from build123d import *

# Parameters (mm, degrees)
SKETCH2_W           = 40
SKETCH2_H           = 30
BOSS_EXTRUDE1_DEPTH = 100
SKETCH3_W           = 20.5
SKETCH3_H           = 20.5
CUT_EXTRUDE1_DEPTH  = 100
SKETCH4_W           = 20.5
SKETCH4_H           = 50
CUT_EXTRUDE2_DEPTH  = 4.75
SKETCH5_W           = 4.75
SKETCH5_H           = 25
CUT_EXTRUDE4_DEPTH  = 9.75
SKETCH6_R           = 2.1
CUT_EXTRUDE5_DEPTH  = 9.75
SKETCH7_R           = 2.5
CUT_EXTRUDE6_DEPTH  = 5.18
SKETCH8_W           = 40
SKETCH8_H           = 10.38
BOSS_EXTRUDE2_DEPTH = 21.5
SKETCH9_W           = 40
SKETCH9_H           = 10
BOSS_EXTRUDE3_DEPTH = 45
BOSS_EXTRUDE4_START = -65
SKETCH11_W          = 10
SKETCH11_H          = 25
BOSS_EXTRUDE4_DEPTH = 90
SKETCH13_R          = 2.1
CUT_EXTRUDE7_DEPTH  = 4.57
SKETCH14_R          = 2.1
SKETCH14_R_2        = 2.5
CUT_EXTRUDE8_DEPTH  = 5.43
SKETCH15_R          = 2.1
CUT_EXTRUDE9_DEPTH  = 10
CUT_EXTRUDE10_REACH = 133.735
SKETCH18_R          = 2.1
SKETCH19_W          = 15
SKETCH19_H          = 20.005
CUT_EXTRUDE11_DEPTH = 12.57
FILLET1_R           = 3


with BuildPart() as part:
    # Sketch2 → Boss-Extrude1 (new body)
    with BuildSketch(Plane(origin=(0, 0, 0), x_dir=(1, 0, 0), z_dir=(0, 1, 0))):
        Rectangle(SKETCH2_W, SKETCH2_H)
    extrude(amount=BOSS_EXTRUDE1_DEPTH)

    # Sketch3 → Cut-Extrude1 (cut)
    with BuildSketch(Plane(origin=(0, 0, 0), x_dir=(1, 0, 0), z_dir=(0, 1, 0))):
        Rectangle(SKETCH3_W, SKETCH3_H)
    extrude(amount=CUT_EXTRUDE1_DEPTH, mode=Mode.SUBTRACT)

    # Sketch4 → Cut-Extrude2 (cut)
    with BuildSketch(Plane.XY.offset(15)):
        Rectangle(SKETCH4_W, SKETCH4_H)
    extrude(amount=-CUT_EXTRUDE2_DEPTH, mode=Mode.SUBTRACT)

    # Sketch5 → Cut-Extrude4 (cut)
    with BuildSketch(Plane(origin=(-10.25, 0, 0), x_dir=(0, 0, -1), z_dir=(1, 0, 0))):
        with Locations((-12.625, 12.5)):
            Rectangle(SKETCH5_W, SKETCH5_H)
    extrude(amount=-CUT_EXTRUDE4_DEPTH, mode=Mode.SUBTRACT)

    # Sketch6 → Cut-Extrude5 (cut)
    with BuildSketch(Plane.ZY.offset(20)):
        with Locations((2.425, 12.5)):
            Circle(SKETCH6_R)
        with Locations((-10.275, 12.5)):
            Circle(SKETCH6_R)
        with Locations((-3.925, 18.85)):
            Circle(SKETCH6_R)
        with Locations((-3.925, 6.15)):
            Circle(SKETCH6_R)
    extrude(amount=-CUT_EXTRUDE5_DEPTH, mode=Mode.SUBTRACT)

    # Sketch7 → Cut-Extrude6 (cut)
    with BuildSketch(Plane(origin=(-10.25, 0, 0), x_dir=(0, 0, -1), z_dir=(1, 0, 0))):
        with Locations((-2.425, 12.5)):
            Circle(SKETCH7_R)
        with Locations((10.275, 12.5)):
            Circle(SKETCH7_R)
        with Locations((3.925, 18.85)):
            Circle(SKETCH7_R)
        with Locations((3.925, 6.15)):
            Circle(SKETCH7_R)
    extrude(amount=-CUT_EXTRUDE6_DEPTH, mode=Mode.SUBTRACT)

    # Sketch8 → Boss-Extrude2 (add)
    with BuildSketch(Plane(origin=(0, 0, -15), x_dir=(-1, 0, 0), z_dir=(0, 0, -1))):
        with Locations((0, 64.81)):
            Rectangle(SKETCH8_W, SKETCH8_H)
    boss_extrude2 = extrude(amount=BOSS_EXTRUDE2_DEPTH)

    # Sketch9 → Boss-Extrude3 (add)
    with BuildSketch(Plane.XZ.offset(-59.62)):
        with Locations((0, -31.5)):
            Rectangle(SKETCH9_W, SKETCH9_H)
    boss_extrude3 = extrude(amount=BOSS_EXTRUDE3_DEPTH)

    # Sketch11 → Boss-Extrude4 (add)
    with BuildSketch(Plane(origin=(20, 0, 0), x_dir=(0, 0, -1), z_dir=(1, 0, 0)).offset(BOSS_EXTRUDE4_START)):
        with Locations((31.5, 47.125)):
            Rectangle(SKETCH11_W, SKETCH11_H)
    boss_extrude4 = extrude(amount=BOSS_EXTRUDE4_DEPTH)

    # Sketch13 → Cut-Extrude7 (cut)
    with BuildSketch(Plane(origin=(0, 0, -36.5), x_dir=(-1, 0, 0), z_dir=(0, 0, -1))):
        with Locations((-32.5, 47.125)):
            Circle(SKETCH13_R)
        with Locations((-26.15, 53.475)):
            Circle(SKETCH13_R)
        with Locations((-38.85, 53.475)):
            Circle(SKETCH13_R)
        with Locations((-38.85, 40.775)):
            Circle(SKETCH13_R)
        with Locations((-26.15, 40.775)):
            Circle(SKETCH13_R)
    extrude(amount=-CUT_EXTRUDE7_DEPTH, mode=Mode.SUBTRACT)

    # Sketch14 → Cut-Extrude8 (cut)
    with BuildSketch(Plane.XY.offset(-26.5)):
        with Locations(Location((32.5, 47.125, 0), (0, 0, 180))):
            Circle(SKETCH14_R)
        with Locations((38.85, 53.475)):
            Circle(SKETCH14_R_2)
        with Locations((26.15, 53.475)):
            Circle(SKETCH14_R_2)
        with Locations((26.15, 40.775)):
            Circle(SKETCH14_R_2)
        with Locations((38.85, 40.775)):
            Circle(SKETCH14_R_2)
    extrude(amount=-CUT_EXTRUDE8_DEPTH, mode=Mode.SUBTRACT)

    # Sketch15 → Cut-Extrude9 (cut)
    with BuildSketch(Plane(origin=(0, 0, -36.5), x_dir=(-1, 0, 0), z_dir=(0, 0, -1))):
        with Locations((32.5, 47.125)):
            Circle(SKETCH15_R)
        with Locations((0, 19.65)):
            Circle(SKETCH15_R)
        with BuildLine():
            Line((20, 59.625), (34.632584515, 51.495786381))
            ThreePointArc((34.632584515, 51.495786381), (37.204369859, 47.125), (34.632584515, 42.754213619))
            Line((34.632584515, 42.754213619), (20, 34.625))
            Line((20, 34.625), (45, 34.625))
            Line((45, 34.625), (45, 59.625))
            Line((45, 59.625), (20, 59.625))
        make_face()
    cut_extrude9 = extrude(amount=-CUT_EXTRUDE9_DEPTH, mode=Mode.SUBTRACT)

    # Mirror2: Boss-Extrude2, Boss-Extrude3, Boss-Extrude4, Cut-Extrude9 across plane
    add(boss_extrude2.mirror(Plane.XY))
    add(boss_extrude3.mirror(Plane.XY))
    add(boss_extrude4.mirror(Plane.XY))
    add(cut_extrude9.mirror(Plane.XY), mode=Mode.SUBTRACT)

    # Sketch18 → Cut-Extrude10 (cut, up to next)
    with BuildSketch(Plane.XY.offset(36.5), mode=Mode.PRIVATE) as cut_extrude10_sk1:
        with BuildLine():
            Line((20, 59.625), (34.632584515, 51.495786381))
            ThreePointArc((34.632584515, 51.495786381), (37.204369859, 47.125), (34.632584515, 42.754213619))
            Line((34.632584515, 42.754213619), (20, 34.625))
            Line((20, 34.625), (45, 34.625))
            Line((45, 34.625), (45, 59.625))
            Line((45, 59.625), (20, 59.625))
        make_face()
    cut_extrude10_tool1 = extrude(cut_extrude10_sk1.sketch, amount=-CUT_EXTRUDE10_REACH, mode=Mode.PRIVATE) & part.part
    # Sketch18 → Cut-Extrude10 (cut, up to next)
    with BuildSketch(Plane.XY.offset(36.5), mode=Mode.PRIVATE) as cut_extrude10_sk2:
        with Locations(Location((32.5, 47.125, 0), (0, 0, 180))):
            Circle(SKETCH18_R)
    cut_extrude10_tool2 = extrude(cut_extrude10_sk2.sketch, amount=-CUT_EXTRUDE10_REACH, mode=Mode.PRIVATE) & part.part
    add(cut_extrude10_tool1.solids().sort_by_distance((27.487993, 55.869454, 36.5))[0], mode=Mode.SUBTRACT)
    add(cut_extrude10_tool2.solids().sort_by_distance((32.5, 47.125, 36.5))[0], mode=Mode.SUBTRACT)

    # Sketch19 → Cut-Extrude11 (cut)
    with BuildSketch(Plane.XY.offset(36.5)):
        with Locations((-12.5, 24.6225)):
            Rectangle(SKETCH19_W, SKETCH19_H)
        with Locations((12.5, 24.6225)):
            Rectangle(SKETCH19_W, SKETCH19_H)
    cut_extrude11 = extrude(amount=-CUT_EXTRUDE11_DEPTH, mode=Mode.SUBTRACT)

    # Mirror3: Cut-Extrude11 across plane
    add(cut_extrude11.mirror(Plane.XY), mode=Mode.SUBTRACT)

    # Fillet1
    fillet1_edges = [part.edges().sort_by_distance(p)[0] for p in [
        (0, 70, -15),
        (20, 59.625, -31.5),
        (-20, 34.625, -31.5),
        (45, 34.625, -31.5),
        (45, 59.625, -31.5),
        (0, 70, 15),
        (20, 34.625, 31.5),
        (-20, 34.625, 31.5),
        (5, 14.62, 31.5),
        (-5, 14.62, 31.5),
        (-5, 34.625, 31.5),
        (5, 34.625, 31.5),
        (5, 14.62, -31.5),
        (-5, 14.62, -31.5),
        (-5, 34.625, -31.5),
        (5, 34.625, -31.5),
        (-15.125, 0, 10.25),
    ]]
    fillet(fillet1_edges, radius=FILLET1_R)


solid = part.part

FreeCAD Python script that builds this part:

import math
import FreeCAD as App
import Part
import Sketcher
from FreeCAD import Vector
Q = App.Units.Quantity


def edges_at(feature, points):
    """Names of the edges that pass closest to the given points."""
    edges = feature.Shape.Edges
    near = lambda p: min(range(len(edges)), key=lambda i: edges[i].distToShape(Part.Vertex(*p))[0])
    return sorted({f"Edge{near(p) + 1}" for p in points})


def add_polygon(sketch, points):
    """Adds a closed chain of lines whose ends are joined by coincident constraints."""
    first, n = sketch.GeometryCount, len(points)
    for a, b in zip(points, points[1:] + points[:1]):
        sketch.addGeometry(Part.LineSegment(App.Vector(*a, 0), App.Vector(*b, 0)), False)
    for i in range(n):
        sketch.addConstraint(Sketcher.Constraint("Coincident", first + i, 2, first + (i + 1) % n, 1))

doc = App.newDocument("Part")
params = doc.addObject("Spreadsheet::Sheet", "Params")
for row, (alias, value) in enumerate([
    ("sketch1_width", "40 mm"),
    ("sketch1_height", "30 mm"),
    ("pad1_length", "100 mm"),
    ("sketch2_width", "20.5 mm"),
    ("pocket1_length", "100 mm"),
    ("sketch3_height", "50 mm"),
    ("sketch3_width", "20.5 mm"),
    ("pocket2_length", "4.75 mm"),
    ("sketch4_width", "25 mm"),
    ("sketch4_height", "4.75 mm"),
    ("pocket3_length", "9.75 mm"),
    ("sketch5_diameter", "4.2 mm"),
    ("pocket4_length", "9.75 mm"),
    ("sketch6_diameter", "5 mm"),
    ("pocket5_length", "5.18 mm"),
    ("sketch7_width", "40 mm"),
    ("sketch7_height", "10.38 mm"),
    ("pad2_length", "21.5 mm"),
    ("sketch8_width", "40 mm"),
    ("sketch8_height", "10 mm"),
    ("pad3_length", "45 mm"),
    ("sketch9_width", "25 mm"),
    ("sketch9_height", "10 mm"),
    ("pad4_length", "90 mm"),
    ("sketch10_diameter", "4.2 mm"),
    ("pocket6_length", "4.57 mm"),
    ("sketch11_diameter", "5 mm"),
    ("sketch11_diameter2", "4.2 mm"),
    ("pocket7_length", "5.43 mm"),
    ("sketch12_radius", "5 mm"),
    ("sketch12_diameter", "4.2 mm"),
    ("sketch12_width", "25 mm"),
    ("pocket8_length", "10 mm"),
    ("sketch13_radius", "5 mm"),
    ("sketch13_width", "25 mm"),
    ("sketch14_diameter", "4.2 mm"),
    ("sketch15_width", "15 mm"),
    ("pocket11_length", "12.57 mm"),
    ("fillet_radius", "3 mm"),
], start=1):
    params.set(f"A{row}", alias)
    params.set(f"B{row}", "=" + value)
    params.setAlias(f"B{row}", alias)

body = doc.addObject("PartDesign::Body", "Body")

sketch1 = doc.addObject("Sketcher::SketchObject", "Sketch")
body.addObject(sketch1)
sketch1.AttachmentSupport = (doc.XZ_Plane, [""])
sketch1.MapMode = "FlatFace"
add_polygon(sketch1, [(-20, -15), (-20, 15), (20, 15), (20, -15)])
sketch1.addConstraint([
    Sketcher.Constraint("Vertical", 0),
    Sketcher.Constraint("Horizontal", 1),
    Sketcher.Constraint("Vertical", 2),
    Sketcher.Constraint("Horizontal", 3),
    Sketcher.Constraint("Symmetric", 0, 2, 2, 2, -1, 1),
    Sketcher.Constraint("DistanceX", 1, 1, 1, 2, Q("40 mm")),
    Sketcher.Constraint("DistanceY", 0, 1, 0, 2, Q("30 mm")),
])
sketch1.setExpression("Constraints[9]", "Params.sketch1_width")
sketch1.setExpression("Constraints[10]", "Params.sketch1_height")
pad1 = doc.addObject("PartDesign::Pad", "Pad")
body.addObject(pad1)
pad1.Profile = sketch1
pad1.setExpression("Length", "Params.pad1_length")
pad1.Reversed = True

sketch2 = doc.addObject("Sketcher::SketchObject", "Sketch001")
body.addObject(sketch2)
sketch2.AttachmentSupport = (doc.XZ_Plane, [""])
sketch2.MapMode = "FlatFace"
add_polygon(sketch2, [(-10, -10), (-10, 10), (10, 10), (10, -10)])
sketch2.addConstraint([
    Sketcher.Constraint("Vertical", 0),
    Sketcher.Constraint("Horizontal", 1),
    Sketcher.Constraint("Vertical", 2),
    Sketcher.Constraint("Horizontal", 3),
    Sketcher.Constraint("Symmetric", 0, 2, 2, 2, -1, 1),
    Sketcher.Constraint("Equal", 3, 0),
    Sketcher.Constraint("DistanceX", 1, 1, 1, 2, Q("20.5 mm")),
])
sketch2.setExpression("Constraints[10]", "Params.sketch2_width")
pocket1 = doc.addObject("PartDesign::Pocket", "Pocket")
body.addObject(pocket1)
pocket1.Profile = sketch2
pocket1.setExpression("Length", "Params.pocket1_length")

sketch3 = doc.addObject("Sketcher::SketchObject", "Sketch002")
body.addObject(sketch3)
sketch3.AttachmentSupport = (doc.XY_Plane, [""])
sketch3.MapMode = "FlatFace"
sketch3.AttachmentOffset = App.Placement(Vector(0, 0, 15), App.Rotation())
add_polygon(sketch3, [(-10, 25), (-10, -25), (10, -25), (10, 25)])
sketch3.addConstraint([
    Sketcher.Constraint("Vertical", 0),
    Sketcher.Constraint("Horizontal", 1),
    Sketcher.Constraint("Vertical", 2),
    Sketcher.Constraint("Horizontal", 3),
    Sketcher.Constraint("Symmetric", 0, 2, 2, 2, -1, 1),
    Sketcher.Constraint("DistanceY", 0, 2, 0, 1, Q("50 mm")),
    Sketcher.Constraint("DistanceX", 1, 1, 1, 2, Q("20.5 mm")),
])
sketch3.setExpression("Constraints[9]", "Params.sketch3_height")
sketch3.setExpression("Constraints[10]", "Params.sketch3_width")
pocket2 = doc.addObject("PartDesign::Pocket", "Pocket001")
body.addObject(pocket2)
pocket2.Profile = sketch3
pocket2.setExpression("Length", "Params.pocket2_length")

sketch4 = doc.addObject("Sketcher::SketchObject", "Sketch003")
body.addObject(sketch4)
sketch4.AttachmentSupport = (doc.YZ_Plane, [""])
sketch4.MapMode = "FlatFace"
sketch4.AttachmentOffset = App.Placement(Vector(0, 0, -10.25), App.Rotation())
add_polygon(sketch4, [(25, 15), (0, 15), (0, 10.2), (25, 10.2)])
sketch4.addConstraint([
    Sketcher.Constraint("Horizontal", 0),
    Sketcher.Constraint("Vertical", 1),
    Sketcher.Constraint("Horizontal", 2),
    Sketcher.Constraint("Vertical", 3),
    Sketcher.Constraint("PointOnObject", 0, 2, -2),
    Sketcher.Constraint("DistanceX", 0, 2, 0, 1, Q("25 mm")),
    Sketcher.Constraint("DistanceY", -1, 1, 0, 2, Q("15 mm")),
    Sketcher.Constraint("DistanceY", 1, 2, 1, 1, Q("4.75 mm")),
])
sketch4.setExpression("Constraints[9]", "Params.sketch4_width")
sketch4.setExpression("Constraints[11]", "Params.sketch4_height")
pocket3 = doc.addObject("PartDesign::Pocket", "Pocket002")
body.addObject(pocket3)
pocket3.Profile = sketch4
pocket3.setExpression("Length", "Params.pocket3_length")

sketch5 = doc.addObject("Sketcher::SketchObject", "Sketch004")
body.addObject(sketch5)
sketch5.AttachmentSupport = (doc.YZ_Plane, [""])
sketch5.MapMode = "FlatFace"
sketch5.AttachmentOffset = App.Placement(Vector(0, 0, -20), App.Rotation())
sketch5.addGeometry([
    Part.Circle(Vector(12.5, 2.4, 0), Vector(0, 0, 1), 2.1),
    Part.Circle(Vector(12.5, -10.3, 0), Vector(0, 0, 1), 2.1),
    Part.Circle(Vector(18.9, -3.9, 0), Vector(0, 0, 1), 2.1),
    Part.Circle(Vector(6.2, -3.9, 0), Vector(0, 0, 1), 2.1),
], False)
sketch5.addConstraint([
    Sketcher.Constraint("Equal", 0, 1),
    Sketcher.Constraint("Equal", 1, 2),
    Sketcher.Constraint("Equal", 2, 3),
    Sketcher.Constraint("Horizontal", 2, 3, 3, 3),
    Sketcher.Constraint("Vertical", 0, 3, 1, 3),
    Sketcher.Constraint("Diameter", 0, Q("4.2 mm")),
    Sketcher.Constraint("DistanceX", -1, 1, 0, 3, Q("12.5 mm")),
    Sketcher.Constraint("DistanceY", 1, 3, 0, 3, Q("12.7 mm")),
    Sketcher.Constraint("DistanceX", 3, 3, 2, 3, Q("12.7 mm")),
    Sketcher.Constraint("DistanceX", -1, 1, 2, 3, Q("18.85 mm")),
    Sketcher.Constraint("DistanceY", 2, 3, 0, 3, Q("6.35 mm")),
    Sketcher.Constraint("DistanceY", -1, 1, 0, 3, Q("2.425 mm")),
])
sketch5.setExpression("Constraints[5]", "Params.sketch5_diameter")
pocket4 = doc.addObject("PartDesign::Pocket", "Pocket003")
body.addObject(pocket4)
pocket4.Profile = sketch5
pocket4.setExpression("Length", "Params.pocket4_length")
pocket4.Reversed = True

sketch6 = doc.addObject("Sketcher::SketchObject", "Sketch005")
body.addObject(sketch6)
sketch6.AttachmentSupport = (doc.YZ_Plane, [""])
sketch6.MapMode = "FlatFace"
sketch6.AttachmentOffset = App.Placement(Vector(0, 0, -10.25), App.Rotation())
sketch6.addGeometry([
    Part.Circle(Vector(12.5, 2.4, 0), Vector(0, 0, 1), 2.5),
    Part.Circle(Vector(12.5, -10.3, 0), Vector(0, 0, 1), 2.5),
    Part.Circle(Vector(18.9, -3.9, 0), Vector(0, 0, 1), 2.5),
    Part.Circle(Vector(6.2, -3.9, 0), Vector(0, 0, 1), 2.5),
], False)
sketch6.addConstraint([
    Sketcher.Constraint("Equal", 0, 1),
    Sketcher.Constraint("Equal", 1, 2),
    Sketcher.Constraint("Equal", 2, 3),
    Sketcher.Constraint("Horizontal", 2, 3, 3, 3),
    Sketcher.Constraint("Vertical", 0, 3, 1, 3),
    Sketcher.Constraint("Diameter", 0, Q("5 mm")),
    Sketcher.Constraint("DistanceX", -1, 1, 0, 3, Q("12.5 mm")),
    Sketcher.Constraint("DistanceY", 1, 3, 0, 3, Q("12.7 mm")),
    Sketcher.Constraint("DistanceX", 3, 3, 2, 3, Q("12.7 mm")),
    Sketcher.Constraint("DistanceX", -1, 1, 2, 3, Q("18.85 mm")),
    Sketcher.Constraint("DistanceY", 2, 3, 0, 3, Q("6.35 mm")),
    Sketcher.Constraint("DistanceY", -1, 1, 0, 3, Q("2.425 mm")),
])
sketch6.setExpression("Constraints[5]", "Params.sketch6_diameter")
pocket5 = doc.addObject("PartDesign::Pocket", "Pocket004")
body.addObject(pocket5)
pocket5.Profile = sketch6
pocket5.setExpression("Length", "Params.pocket5_length")

sketch7 = doc.addObject("Sketcher::SketchObject", "Sketch006")
body.addObject(sketch7)
sketch7.AttachmentSupport = (doc.XY_Plane, [""])
sketch7.MapMode = "FlatFace"
sketch7.AttachmentOffset = App.Placement(Vector(0, 0, -15), App.Rotation())
add_polygon(sketch7, [(20, 70), (20, 60), (-20, 60), (-20, 70)])
sketch7.addConstraint([
    Sketcher.Constraint("Vertical", 0),
    Sketcher.Constraint("Horizontal", 1),
    Sketcher.Constraint("Vertical", 2),
    Sketcher.Constraint("Horizontal", 3),
    Sketcher.Constraint("DistanceX", 1, 2, 1, 1, Q("40 mm")),
    Sketcher.Constraint("DistanceX", -1, 1, 0, 2, Q("20 mm")),
    Sketcher.Constraint("DistanceY", -1, 1, 2, 2, Q("70 mm")),
    Sketcher.Constraint("DistanceY", 0, 2, 0, 1, Q("10.38 mm")),
])
sketch7.setExpression("Constraints[8]", "Params.sketch7_width")
sketch7.setExpression("Constraints[11]", "Params.sketch7_height")
pad2 = doc.addObject("PartDesign::Pad", "Pad001")
body.addObject(pad2)
pad2.Profile = sketch7
pad2.setExpression("Length", "Params.pad2_length")
pad2.Reversed = True

sketch8 = doc.addObject("Sketcher::SketchObject", "Sketch007")
body.addObject(sketch8)
sketch8.AttachmentSupport = (doc.XZ_Plane, [""])
sketch8.MapMode = "FlatFace"
sketch8.AttachmentOffset = App.Placement(Vector(0, 0, -59.62), App.Rotation())
add_polygon(sketch8, [(-20, -26), (-20, -36), (20, -36), (20, -26)])
sketch8.addConstraint([
    Sketcher.Constraint("Vertical", 0),
    Sketcher.Constraint("Horizontal", 1),
    Sketcher.Constraint("Vertical", 2),
    Sketcher.Constraint("Horizontal", 3),
    Sketcher.Constraint("DistanceX", 1, 1, 1, 2, Q("40 mm")),
    Sketcher.Constraint("DistanceY", 0, 2, 0, 1, Q("10 mm")),
    Sketcher.Constraint("DistanceX", 0, 2, -1, 1, Q("20 mm")),
    Sketcher.Constraint("DistanceY", 0, 2, -1, 1, Q("36.5 mm")),
])
sketch8.setExpression("Constraints[8]", "Params.sketch8_width")
sketch8.setExpression("Constraints[9]", "Params.sketch8_height")
pad3 = doc.addObject("PartDesign::Pad", "Pad002")
body.addObject(pad3)
pad3.Profile = sketch8
pad3.setExpression("Length", "Params.pad3_length")

sketch9 = doc.addObject("Sketcher::SketchObject", "Sketch008")
body.addObject(sketch9)
sketch9.AttachmentSupport = (doc.YZ_Plane, [""])
sketch9.MapMode = "FlatFace"
sketch9.AttachmentOffset = App.Placement(Vector(0, 0, -45), App.Rotation())
add_polygon(sketch9, [(60, -26), (35, -26), (35, -36), (60, -36)])
sketch9.addConstraint([
    Sketcher.Constraint("Horizontal", 0),
    Sketcher.Constraint("Vertical", 1),
    Sketcher.Constraint("Horizontal", 2),
    Sketcher.Constraint("Vertical", 3),
    Sketcher.Constraint("DistanceX", 0, 2, 0, 1, Q("25 mm")),
    Sketcher.Constraint("DistanceY", 1, 2, 1, 1, Q("10 mm")),
    Sketcher.Constraint("DistanceY", 0, 2, -1, 1, Q("26.5 mm")),
    Sketcher.Constraint("DistanceX", -1, 1, 0, 2, Q("34.625 mm")),
])
sketch9.setExpression("Constraints[8]", "Params.sketch9_width")
sketch9.setExpression("Constraints[9]", "Params.sketch9_height")
pad4 = doc.addObject("PartDesign::Pad", "Pad003")
body.addObject(pad4)
pad4.Profile = sketch9
pad4.setExpression("Length", "Params.pad4_length")

sketch10 = doc.addObject("Sketcher::SketchObject", "Sketch009")
body.addObject(sketch10)
sketch10.AttachmentSupport = (doc.XY_Plane, [""])
sketch10.MapMode = "FlatFace"
sketch10.AttachmentOffset = App.Placement(Vector(0, 0, -36.5), App.Rotation())
sketch10.addGeometry([
    Part.Circle(Vector(32.5, 47.1, 0), Vector(0, 0, 1), 2.1),
    Part.Circle(Vector(26.1, 53.5, 0), Vector(0, 0, 1), 2.1),
    Part.Circle(Vector(38.9, 53.5, 0), Vector(0, 0, 1), 2.1),
    Part.Circle(Vector(38.9, 40.8, 0), Vector(0, 0, 1), 2.1),
    Part.Circle(Vector(26.1, 40.8, 0), Vector(0, 0, 1), 2.1),
], False)
sketch10.addConstraint([
    Sketcher.Constraint("Equal", 0, 1),
    Sketcher.Constraint("Equal", 1, 2),
    Sketcher.Constraint("Equal", 2, 3),
    Sketcher.Constraint("Equal", 3, 4),
    Sketcher.Constraint("Horizontal", 1, 3, 2, 3),
    Sketcher.Constraint("Horizontal", 3, 3, 4, 3),
    Sketcher.Constraint("Vertical", 2, 3, 3, 3),
    Sketcher.Constraint("Vertical", 1, 3, 4, 3),
    Sketcher.Constraint("Diameter", 0, Q("4.2 mm")),
    Sketcher.Constraint("DistanceX", -1, 1, 0, 3, Q("32.5 mm")),
    Sketcher.Constraint("DistanceX", 1, 3, 2, 3, Q("12.7 mm")),
    Sketcher.Constraint("DistanceY", 3, 3, 2, 3, Q("12.7 mm")),
    Sketcher.Constraint("DistanceX", -1, 1, 1, 3, Q("26.15 mm")),
    Sketcher.Constraint("DistanceY", 0, 3, 1, 3, Q("6.35 mm")),
    Sketcher.Constraint("DistanceY", -1, 1, 0, 3, Q("47.125 mm")),
])
sketch10.setExpression("Constraints[8]", "Params.sketch10_diameter")
pocket6 = doc.addObject("PartDesign::Pocket", "Pocket005")
body.addObject(pocket6)
pocket6.Profile = sketch10
pocket6.setExpression("Length", "Params.pocket6_length")
pocket6.Reversed = True

sketch11 = doc.addObject("Sketcher::SketchObject", "Sketch010")
body.addObject(sketch11)
sketch11.AttachmentSupport = (doc.XY_Plane, [""])
sketch11.MapMode = "FlatFace"
sketch11.AttachmentOffset = App.Placement(Vector(0, 0, -26.5), App.Rotation())
sketch11.addGeometry([
    Part.Circle(Vector(32.5, 47.1, 0), Vector(0, 0, 1), 2.1),
    Part.Circle(Vector(38.9, 53.5, 0), Vector(0, 0, 1), 2.5),
    Part.Circle(Vector(26.1, 53.5, 0), Vector(0, 0, 1), 2.5),
    Part.Circle(Vector(26.1, 40.8, 0), Vector(0, 0, 1), 2.5),
    Part.Circle(Vector(38.9, 40.8, 0), Vector(0, 0, 1), 2.5),
], False)
sketch11.addConstraint([
    Sketcher.Constraint("Equal", 1, 2),
    Sketcher.Constraint("Equal", 2, 3),
    Sketcher.Constraint("Equal", 3, 4),
    Sketcher.Constraint("Horizontal", 1, 3, 2, 3),
    Sketcher.Constraint("Horizontal", 3, 3, 4, 3),
    Sketcher.Constraint("Vertical", 2, 3, 3, 3),
    Sketcher.Constraint("Vertical", 1, 3, 4, 3),
    Sketcher.Constraint("Diameter", 1, Q("5 mm")),
    Sketcher.Constraint("Diameter", 0, Q("4.2 mm")),
    Sketcher.Constraint("DistanceX", -1, 1, 0, 3, Q("32.5 mm")),
    Sketcher.Constraint("DistanceX", 2, 3, 1, 3, Q("12.7 mm")),
    Sketcher.Constraint("DistanceY", 3, 3, 2, 3, Q("12.7 mm")),
    Sketcher.Constraint("DistanceX", -1, 1, 1, 3, Q("38.85 mm")),
    Sketcher.Constraint("DistanceY", 0, 3, 1, 3, Q("6.35 mm")),
    Sketcher.Constraint("DistanceY", -1, 1, 0, 3, Q("47.125 mm")),
])
sketch11.setExpression("Constraints[7]", "Params.sketch11_diameter")
sketch11.setExpression("Constraints[8]", "Params.sketch11_diameter2")
pocket7 = doc.addObject("PartDesign::Pocket", "Pocket006")
body.addObject(pocket7)
pocket7.Profile = sketch11
pocket7.setExpression("Length", "Params.pocket7_length")

sketch12 = doc.addObject("Sketcher::SketchObject", "Sketch011")
body.addObject(sketch12)
sketch12.AttachmentSupport = (doc.XY_Plane, [""])
sketch12.MapMode = "FlatFace"
sketch12.AttachmentOffset = App.Placement(Vector(0, 0, -36.5), App.Rotation())
sketch12.addGeometry([
    Part.Circle(Vector(-32.5, 47.1, 0), Vector(0, 0, 1), 2.1),
    Part.Circle(Vector(0, 19.6, 0), Vector(0, 0, 1), 2.1),
    Part.LineSegment(Vector(-20, 59.6, 0), Vector(-34.6, 51.5, 0)),
    Part.ArcOfCircle(Part.Circle(Vector(-32.2, 47.1, 0), Vector(0, 0, 1), 5), math.radians(119), math.radians(241)),
    Part.LineSegment(Vector(-34.6, 42.8, 0), Vector(-20, 34.6, 0)),
    Part.LineSegment(Vector(-20, 34.6, 0), Vector(-45, 34.6, 0)),
    Part.LineSegment(Vector(-45, 34.6, 0), Vector(-45, 59.6, 0)),
    Part.LineSegment(Vector(-45, 59.6, 0), Vector(-20, 59.6, 0)),
], False)
sketch12.addConstraint([
    Sketcher.Constraint("Tangent", 2, 2, 3, 1),
    Sketcher.Constraint("Tangent", 3, 2, 4, 1),
    Sketcher.Constraint("Coincident", 4, 2, 5, 1),
    Sketcher.Constraint("Coincident", 5, 2, 6, 1),
    Sketcher.Constraint("Coincident", 6, 2, 7, 1),
    Sketcher.Constraint("Coincident", 7, 2, 2, 1),
    Sketcher.Constraint("Horizontal", 5),
    Sketcher.Constraint("Vertical", 6),
    Sketcher.Constraint("Horizontal", 7),
    Sketcher.Constraint("Equal", 0, 1),
    Sketcher.Constraint("PointOnObject", 1, 3, -2),
    Sketcher.Constraint("Horizontal", 0, 3, 3, 3),
    Sketcher.Constraint("Vertical", 2, 2, 3, 2),
    Sketcher.Constraint("Vertical", 4, 2, 7, 2),
    Sketcher.Constraint("Equal", 7, 6),
    Sketcher.Constraint("Radius", 3, Q("5 mm")),
    Sketcher.Constraint("Diameter", 0, Q("4.2 mm")),
    Sketcher.Constraint("DistanceX", 5, 2, 5, 1, Q("25 mm")),
    Sketcher.Constraint("DistanceX", 4, 2, -1, 1, Q("20 mm")),
    Sketcher.Constraint("DistanceX", 0, 3, -1, 1, Q("32.5 mm")),
    Sketcher.Constraint("DistanceY", -1, 1, 1, 3, Q("19.65 mm")),
    Sketcher.Constraint("DistanceY", -1, 1, 0, 3, Q("47.125 mm")),
    Sketcher.Constraint("DistanceX", 3, 3, -1, 1, Q("32.20437 mm")),
])
sketch12.setExpression("Constraints[15]", "Params.sketch12_radius")
sketch12.setExpression("Constraints[16]", "Params.sketch12_diameter")
sketch12.setExpression("Constraints[17]", "Params.sketch12_width")
pocket8 = doc.addObject("PartDesign::Pocket", "Pocket007")
body.addObject(pocket8)
pocket8.Profile = sketch12
pocket8.setExpression("Length", "Params.pocket8_length")
pocket8.Reversed = True
doc.recompute()

mirrored = doc.addObject("PartDesign::Mirrored", "Mirrored")
body.addObject(mirrored)
mirrored.Originals = [pad2, pad3, pad4, pocket8]
mirrored.MirrorPlane = (doc.XY_Plane, [""])
body.Tip = mirrored

sketch13 = doc.addObject("Sketcher::SketchObject", "Sketch012")
body.addObject(sketch13)
sketch13.AttachmentSupport = (doc.XY_Plane, [""])
sketch13.MapMode = "FlatFace"
sketch13.AttachmentOffset = App.Placement(Vector(0, 0, 36.5), App.Rotation())
sketch13.addGeometry([
    Part.LineSegment(Vector(20, 60, 0), Vector(35, 51, 0)),
    Part.ArcOfCircle(Part.Circle(Vector(32, 47, 0), Vector(0, 0, 1), 5), math.radians(-61), math.radians(61)),
    Part.LineSegment(Vector(35, 43, 0), Vector(20, 35, 0)),
    Part.LineSegment(Vector(20, 35, 0), Vector(45, 35, 0)),
    Part.LineSegment(Vector(45, 35, 0), Vector(45, 60, 0)),
    Part.LineSegment(Vector(45, 60, 0), Vector(20, 60, 0)),
], False)
sketch13.addConstraint([
    Sketcher.Constraint("Tangent", 0, 2, 1, 2),
    Sketcher.Constraint("Tangent", 1, 1, 2, 1),
    Sketcher.Constraint("Coincident", 2, 2, 3, 1),
    Sketcher.Constraint("Coincident", 3, 2, 4, 1),
    Sketcher.Constraint("Coincident", 4, 2, 5, 1),
    Sketcher.Constraint("Coincident", 5, 2, 0, 1),
    Sketcher.Constraint("Horizontal", 3),
    Sketcher.Constraint("Vertical", 4),
    Sketcher.Constraint("Horizontal", 5),
    Sketcher.Constraint("Vertical", 0, 2, 1, 1),
    Sketcher.Constraint("Vertical", 2, 2, 5, 2),
    Sketcher.Constraint("Equal", 5, 4),
    Sketcher.Constraint("Radius", 1, Q("5 mm")),
    Sketcher.Constraint("DistanceX", 3, 1, 3, 2, Q("25 mm")),
    Sketcher.Constraint("DistanceX", -1, 1, 2, 2, Q("20 mm")),
    Sketcher.Constraint("DistanceY", -1, 1, 1, 3, Q("47.125 mm")),
    Sketcher.Constraint("DistanceX", -1, 1, 1, 3, Q("32.20437 mm")),
])
sketch13.setExpression("Constraints[12]", "Params.sketch13_radius")
sketch13.setExpression("Constraints[13]", "Params.sketch13_width")
pocket9 = doc.addObject("PartDesign::Pocket", "Pocket008")
body.addObject(pocket9)
pocket9.Profile = sketch13
pocket9.Type = "UpToFirst"

sketch14 = doc.addObject("Sketcher::SketchObject", "Sketch013")
body.addObject(sketch14)
sketch14.AttachmentSupport = (doc.XY_Plane, [""])
sketch14.MapMode = "FlatFace"
sketch14.AttachmentOffset = App.Placement(Vector(0, 0, 36.5), App.Rotation())
sketch14.addGeometry(Part.Circle(Vector(32.5, 47.1, 0), Vector(0, 0, 1), 2.1), False)
sketch14.addConstraint([
    Sketcher.Constraint("Diameter", 0, Q("4.2 mm")),
    Sketcher.Constraint("DistanceX", -1, 1, 0, 3, Q("32.5 mm")),
    Sketcher.Constraint("DistanceY", -1, 1, 0, 3, Q("47.125 mm")),
])
sketch14.setExpression("Constraints[0]", "Params.sketch14_diameter")
pocket10 = doc.addObject("PartDesign::Pocket", "Pocket009")
body.addObject(pocket10)
pocket10.Profile = sketch14
pocket10.Type = "UpToFirst"

sketch15 = doc.addObject("Sketcher::SketchObject", "Sketch014")
body.addObject(sketch15)
sketch15.AttachmentSupport = (doc.XY_Plane, [""])
sketch15.MapMode = "FlatFace"
sketch15.AttachmentOffset = App.Placement(Vector(0, 0, 36.5), App.Rotation())
add_polygon(sketch15, [(-20, 35), (-20, 15), (-5, 15), (-5, 35)])
add_polygon(sketch15, [(5, 35), (5, 15), (20, 15), (20, 35)])
sketch15.addConstraint([
    Sketcher.Constraint("Vertical", 0),
    Sketcher.Constraint("Horizontal", 1),
    Sketcher.Constraint("Vertical", 2),
    Sketcher.Constraint("Horizontal", 3),
    Sketcher.Constraint("Vertical", 4),
    Sketcher.Constraint("Horizontal", 5),
    Sketcher.Constraint("Vertical", 6),
    Sketcher.Constraint("Horizontal", 7),
    Sketcher.Constraint("Symmetric", 1, 2, 4, 2, -2),
    Sketcher.Constraint("Symmetric", 3, 2, 6, 2, -2),
    Sketcher.Constraint("DistanceX", 1, 1, 1, 2, Q("15 mm")),
    Sketcher.Constraint("DistanceX", 0, 2, -1, 1, Q("20 mm")),
    Sketcher.Constraint("DistanceY", 0, 2, 0, 1, Q("20.005 mm")),
    Sketcher.Constraint("DistanceY", -1, 1, 0, 2, Q("14.62 mm")),
])
sketch15.setExpression("Constraints[18]", "Params.sketch15_width")
pocket11 = doc.addObject("PartDesign::Pocket", "Pocket010")
body.addObject(pocket11)
pocket11.Profile = sketch15
pocket11.setExpression("Length", "Params.pocket11_length")
doc.recompute()

mirrored2 = doc.addObject("PartDesign::Mirrored", "Mirrored001")
body.addObject(mirrored2)
mirrored2.Originals = [pocket11]
mirrored2.MirrorPlane = (doc.XY_Plane, [""])
body.Tip = mirrored2
doc.recompute()

fillet = doc.addObject("PartDesign::Fillet", "Fillet")
body.addObject(fillet)
fillet.Base = (mirrored2, edges_at(mirrored2, [
    (0, 70, -15),
    (20, 59.625, -31.5),
    (-20, 34.625, -31.5),
    (45, 34.625, -31.5),
    (45, 59.625, -31.5),
    (0, 70, 15),
    (20, 34.625, 31.5),
    (-20, 34.625, 31.5),
    (5, 14.62, 31.5),
    (-5, 14.62, 31.5),
    (-5, 34.625, 31.5),
    (5, 34.625, 31.5),
    (5, 14.62, -31.5),
    (-5, 14.62, -31.5),
    (-5, 34.625, -31.5),
    (5, 34.625, -31.5),
    (-15.125, 0, 10.25),
]))
fillet.setExpression("Radius", "Params.fillet_radius")

doc.recompute()
